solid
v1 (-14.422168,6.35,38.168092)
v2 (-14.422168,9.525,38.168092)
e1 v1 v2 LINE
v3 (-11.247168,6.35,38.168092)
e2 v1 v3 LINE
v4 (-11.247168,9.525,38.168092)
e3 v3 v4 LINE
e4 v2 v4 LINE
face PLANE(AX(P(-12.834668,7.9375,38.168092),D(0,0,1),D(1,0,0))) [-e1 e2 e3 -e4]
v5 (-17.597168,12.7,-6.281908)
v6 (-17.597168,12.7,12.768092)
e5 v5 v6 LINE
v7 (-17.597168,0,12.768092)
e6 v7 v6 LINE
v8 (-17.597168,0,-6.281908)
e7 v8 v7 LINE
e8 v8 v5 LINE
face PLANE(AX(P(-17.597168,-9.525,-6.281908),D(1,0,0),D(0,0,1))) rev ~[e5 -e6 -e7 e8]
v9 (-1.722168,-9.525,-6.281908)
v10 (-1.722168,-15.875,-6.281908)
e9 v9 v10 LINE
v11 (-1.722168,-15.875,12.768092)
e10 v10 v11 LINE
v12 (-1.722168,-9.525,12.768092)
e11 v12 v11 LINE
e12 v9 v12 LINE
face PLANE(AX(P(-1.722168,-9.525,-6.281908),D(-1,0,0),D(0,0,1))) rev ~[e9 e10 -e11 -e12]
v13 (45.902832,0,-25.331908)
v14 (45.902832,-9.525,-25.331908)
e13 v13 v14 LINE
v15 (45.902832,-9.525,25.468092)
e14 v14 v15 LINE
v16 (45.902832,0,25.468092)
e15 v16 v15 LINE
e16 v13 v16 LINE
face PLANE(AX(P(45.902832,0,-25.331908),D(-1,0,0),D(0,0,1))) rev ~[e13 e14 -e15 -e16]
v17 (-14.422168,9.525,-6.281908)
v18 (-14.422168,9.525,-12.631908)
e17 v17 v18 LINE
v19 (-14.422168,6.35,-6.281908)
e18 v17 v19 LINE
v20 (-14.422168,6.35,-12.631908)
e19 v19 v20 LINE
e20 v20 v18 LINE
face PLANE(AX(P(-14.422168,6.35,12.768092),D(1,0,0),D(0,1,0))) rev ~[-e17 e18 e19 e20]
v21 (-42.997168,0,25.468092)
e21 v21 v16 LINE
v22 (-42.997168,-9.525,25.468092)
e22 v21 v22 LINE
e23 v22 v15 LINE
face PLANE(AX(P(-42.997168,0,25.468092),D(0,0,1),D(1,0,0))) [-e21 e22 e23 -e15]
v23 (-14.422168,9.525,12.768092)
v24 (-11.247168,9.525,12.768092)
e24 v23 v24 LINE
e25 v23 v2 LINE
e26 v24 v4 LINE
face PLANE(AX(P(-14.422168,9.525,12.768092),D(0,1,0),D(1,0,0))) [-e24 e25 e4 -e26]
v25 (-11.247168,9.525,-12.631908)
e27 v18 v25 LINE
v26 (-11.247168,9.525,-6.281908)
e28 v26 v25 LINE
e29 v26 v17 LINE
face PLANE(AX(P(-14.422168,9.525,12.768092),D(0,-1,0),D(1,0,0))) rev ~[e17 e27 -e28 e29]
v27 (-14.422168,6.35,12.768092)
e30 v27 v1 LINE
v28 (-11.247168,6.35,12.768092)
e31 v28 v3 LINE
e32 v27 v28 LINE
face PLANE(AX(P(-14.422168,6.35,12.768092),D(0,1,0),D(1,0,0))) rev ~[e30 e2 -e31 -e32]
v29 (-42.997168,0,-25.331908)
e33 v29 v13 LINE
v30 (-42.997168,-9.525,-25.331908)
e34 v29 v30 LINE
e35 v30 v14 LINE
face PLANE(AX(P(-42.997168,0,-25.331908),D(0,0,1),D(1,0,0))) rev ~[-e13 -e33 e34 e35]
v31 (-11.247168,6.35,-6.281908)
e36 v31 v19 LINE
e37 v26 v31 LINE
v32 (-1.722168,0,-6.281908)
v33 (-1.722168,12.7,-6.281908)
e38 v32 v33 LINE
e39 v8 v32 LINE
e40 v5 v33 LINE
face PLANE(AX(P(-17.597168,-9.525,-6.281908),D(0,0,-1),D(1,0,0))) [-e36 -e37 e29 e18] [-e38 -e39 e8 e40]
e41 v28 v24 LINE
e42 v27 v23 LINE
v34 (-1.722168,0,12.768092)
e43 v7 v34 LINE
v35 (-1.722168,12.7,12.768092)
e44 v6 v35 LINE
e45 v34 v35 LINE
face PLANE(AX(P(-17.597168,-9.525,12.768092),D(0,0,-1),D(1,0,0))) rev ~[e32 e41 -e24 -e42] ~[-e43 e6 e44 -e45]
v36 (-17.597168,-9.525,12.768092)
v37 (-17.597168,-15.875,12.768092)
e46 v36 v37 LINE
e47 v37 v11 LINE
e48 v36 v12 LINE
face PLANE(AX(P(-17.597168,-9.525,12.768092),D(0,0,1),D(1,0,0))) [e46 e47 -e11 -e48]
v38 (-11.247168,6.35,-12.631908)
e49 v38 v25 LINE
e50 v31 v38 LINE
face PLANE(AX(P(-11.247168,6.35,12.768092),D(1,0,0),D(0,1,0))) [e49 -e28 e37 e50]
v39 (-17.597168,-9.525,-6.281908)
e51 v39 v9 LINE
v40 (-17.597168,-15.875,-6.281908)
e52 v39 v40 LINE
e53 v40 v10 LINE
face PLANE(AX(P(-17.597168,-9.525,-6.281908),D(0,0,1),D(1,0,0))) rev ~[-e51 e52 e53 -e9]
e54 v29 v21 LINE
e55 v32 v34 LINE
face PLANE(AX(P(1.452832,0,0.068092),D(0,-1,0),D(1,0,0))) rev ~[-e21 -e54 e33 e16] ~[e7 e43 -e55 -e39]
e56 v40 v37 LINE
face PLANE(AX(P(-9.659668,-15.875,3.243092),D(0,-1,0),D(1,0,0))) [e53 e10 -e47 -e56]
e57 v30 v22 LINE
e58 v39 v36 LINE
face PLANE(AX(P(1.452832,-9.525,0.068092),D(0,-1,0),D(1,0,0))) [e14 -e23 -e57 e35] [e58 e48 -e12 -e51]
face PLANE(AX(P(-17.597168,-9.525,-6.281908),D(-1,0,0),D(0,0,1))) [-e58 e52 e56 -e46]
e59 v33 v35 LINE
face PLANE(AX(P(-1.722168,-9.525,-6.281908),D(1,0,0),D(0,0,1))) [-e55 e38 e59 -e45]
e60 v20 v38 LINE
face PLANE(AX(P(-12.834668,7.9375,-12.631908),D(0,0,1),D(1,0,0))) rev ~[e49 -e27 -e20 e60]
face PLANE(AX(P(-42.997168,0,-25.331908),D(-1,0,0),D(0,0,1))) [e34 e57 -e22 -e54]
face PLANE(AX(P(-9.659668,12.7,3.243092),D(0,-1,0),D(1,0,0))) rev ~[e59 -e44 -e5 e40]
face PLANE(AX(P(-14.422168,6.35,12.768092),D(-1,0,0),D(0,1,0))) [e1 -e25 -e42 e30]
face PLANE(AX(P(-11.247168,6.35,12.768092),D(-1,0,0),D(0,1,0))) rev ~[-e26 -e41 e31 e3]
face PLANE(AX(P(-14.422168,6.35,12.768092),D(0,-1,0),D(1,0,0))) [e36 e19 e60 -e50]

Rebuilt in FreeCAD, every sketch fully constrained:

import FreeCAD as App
import Part
import Sketcher
Q = App.Units.Quantity

doc = App.newDocument("Part")
params = doc.addObject("Spreadsheet::Sheet", "Params")
for row, (alias, value) in enumerate([
    ("sketch1_height", "2 in"),
    ("sketch1_width", "3.5 in"),
    ("pad1_length", "0.375 in"),
    ("sketch2_height", "0.75 in"),
    ("sketch2_width", "0.625 in"),
    ("pad2_length", "0.25 in"),
    ("pad2_length2", "0.875 in"),
    ("sketch3_width", "0.125 in"),
    ("pad3_length", "1 in"),
    ("pad3_length2", "1 in"),
], start=1):
    params.set(f"A{row}", alias)
    params.set(f"B{row}", "=" + value)
    params.setAlias(f"B{row}", alias)

body = doc.addObject("PartDesign::Body", "Body")

# Sketch on XZ plane
sketch1 = doc.addObject("Sketcher::SketchObject", "Sketch")
body.addObject(sketch1)
sketch1.AttachmentSupport = (doc.XZ_Plane, [""])
sketch1.MapMode = "FlatFace"
sketch1.addGeometry([
    Part.LineSegment(App.Vector(-42.997168, 25.468092, 0), App.Vector(-42.997168, -25.331908, 0)),
    Part.LineSegment(App.Vector(-42.997168, -25.331908, 0), App.Vector(45.902832, -25.331908, 0)),
    Part.LineSegment(App.Vector(45.902832, -25.331908, 0), App.Vector(45.902832, 25.468092, 0)),
    Part.LineSegment(App.Vector(45.902832, 25.468092, 0), App.Vector(-42.997168, 25.468092, 0)),
], False)
sketch1.addConstraint([
    Sketcher.Constraint("Coincident", 0, 2, 1, 1),
    Sketcher.Constraint("Coincident", 1, 2, 2, 1),
    Sketcher.Constraint("Coincident", 2, 2, 3, 1),
    Sketcher.Constraint("Coincident", 3, 2, 0, 1),
    Sketcher.Constraint("Vertical", 0),
    Sketcher.Constraint("Horizontal", 1),
    Sketcher.Constraint("Vertical", 2),
    Sketcher.Constraint("Horizontal", 3),
    Sketcher.Constraint("DistanceY", 0, 2, 0, 1, Q("2 in")),
    Sketcher.Constraint("DistanceX", 1, 1, 1, 2, Q("3.5 in")),
    Sketcher.Constraint("DistanceX", 0, 2, -1, 1, Q("42.997168 mm")),
    Sketcher.Constraint("DistanceY", -1, 1, 2, 2, Q("25.468092 mm")),
])
sketch1.setExpression("Constraints[8]", "Params.sketch1_height")
sketch1.setExpression("Constraints[9]", "Params.sketch1_width")
pad1 = doc.addObject("PartDesign::Pad", "Pad")
body.addObject(pad1)
pad1.Profile = sketch1
pad1.setExpression("Length", "Params.pad1_length")

# Sketch on XZ plane
sketch2 = doc.addObject("Sketcher::SketchObject", "Sketch001")
body.addObject(sketch2)
sketch2.AttachmentSupport = (doc.XZ_Plane, [""])
sketch2.MapMode = "FlatFace"
sketch2.AttachmentOffset = App.Placement(App.Vector(0, 0, 0.375 * 25.4), App.Rotation())
sketch2.addGeometry([
    Part.LineSegment(App.Vector(-17.597168, 12.768092, 0), App.Vector(-17.597168, -6.281908, 0)),
    Part.LineSegment(App.Vector(-17.597168, -6.281908, 0), App.Vector(-1.722168, -6.281908, 0)),
    Part.LineSegment(App.Vector(-1.722168, -6.281908, 0), App.Vector(-1.722168, 12.768092, 0)),
    Part.LineSegment(App.Vector(-1.722168, 12.768092, 0), App.Vector(-17.597168, 12.768092, 0)),
], False)
sketch2.addConstraint([
    Sketcher.Constraint("Coincident", 0, 2, 1, 1),
    Sketcher.Constraint("Coincident", 1, 2, 2, 1),
    Sketcher.Constraint("Coincident", 2, 2, 3, 1),
    Sketcher.Constraint("Coincident", 3, 2, 0, 1),
    Sketcher.Constraint("Vertical", 0),
    Sketcher.Constraint("Horizontal", 1),
    Sketcher.Constraint("Vertical", 2),
    Sketcher.Constraint("Horizontal", 3),
    Sketcher.Constraint("DistanceY", 0, 2, 0, 1, Q("0.75 in")),
    Sketcher.Constraint("DistanceX", 1, 1, 1, 2, Q("0.625 in")),
    Sketcher.Constraint("DistanceX", 0, 2, -1, 1, Q("17.597168 mm")),
    Sketcher.Constraint("DistanceY", -1, 1, 2, 2, Q("12.768092 mm")),
])
sketch2.setExpression("Constraints[8]", "Params.sketch2_height")
sketch2.setExpression("Constraints[9]", "Params.sketch2_width")
pad2 = doc.addObject("PartDesign::Pad", "Pad001")
body.addObject(pad2)
pad2.Profile = sketch2
pad2.Type = "TwoLengths"
pad2.setExpression("Length", "Params.pad2_length")
pad2.setExpression("Length2", "Params.pad2_length2")

# Sketch on XY plane
sketch3 = doc.addObject("Sketcher::SketchObject", "Sketch002")
body.addObject(sketch3)
sketch3.AttachmentSupport = (doc.XY_Plane, [""])
sketch3.MapMode = "FlatFace"
sketch3.AttachmentOffset = App.Placement(App.Vector(0, 0, 12.768092), App.Rotation())
sketch3.addGeometry([
    Part.LineSegment(App.Vector(-14.422168, 9.525, 0), App.Vector(-14.422168, 6.35, 0)),
    Part.LineSegment(App.Vector(-14.422168, 6.35, 0), App.Vector(-11.247168, 6.35, 0)),
    Part.LineSegment(App.Vector(-11.247168, 6.35, 0), App.Vector(-11.247168, 9.525, 0)),
    Part.LineSegment(App.Vector(-11.247168, 9.525, 0), App.Vector(-14.422168, 9.525, 0)),
], False)
sketch3.addConstraint([
    Sketcher.Constraint("Coincident", 0, 2, 1, 1),
    Sketcher.Constraint("Coincident", 1, 2, 2, 1),
    Sketcher.Constraint("Coincident", 2, 2, 3, 1),
    Sketcher.Constraint("Coincident", 3, 2, 0, 1),
    Sketcher.Constraint("Vertical", 0),
    Sketcher.Constraint("Horizontal", 1),
    Sketcher.Constraint("Vertical", 2),
    Sketcher.Constraint("Horizontal", 3),
    Sketcher.Constraint("Equal", 3, 0),
    Sketcher.Constraint("DistanceX", 1, 1, 1, 2, Q("0.125 in")),
    Sketcher.Constraint("DistanceY", -1, 1, 0, 2, Q("0.25 in")),
    Sketcher.Constraint("DistanceX", 0, 2, -1, 1, Q("14.422168 mm")),
])
sketch3.setExpression("Constraints[9]", "Params.sketch3_width")
pad3 = doc.addObject("PartDesign::Pad", "Pad002")
body.addObject(pad3)
pad3.Profile = sketch3
pad3.Type = "TwoLengths"
pad3.setExpression("Length", "Params.pad3_length")
pad3.setExpression("Length2", "Params.pad3_length2")

doc.recompute()
